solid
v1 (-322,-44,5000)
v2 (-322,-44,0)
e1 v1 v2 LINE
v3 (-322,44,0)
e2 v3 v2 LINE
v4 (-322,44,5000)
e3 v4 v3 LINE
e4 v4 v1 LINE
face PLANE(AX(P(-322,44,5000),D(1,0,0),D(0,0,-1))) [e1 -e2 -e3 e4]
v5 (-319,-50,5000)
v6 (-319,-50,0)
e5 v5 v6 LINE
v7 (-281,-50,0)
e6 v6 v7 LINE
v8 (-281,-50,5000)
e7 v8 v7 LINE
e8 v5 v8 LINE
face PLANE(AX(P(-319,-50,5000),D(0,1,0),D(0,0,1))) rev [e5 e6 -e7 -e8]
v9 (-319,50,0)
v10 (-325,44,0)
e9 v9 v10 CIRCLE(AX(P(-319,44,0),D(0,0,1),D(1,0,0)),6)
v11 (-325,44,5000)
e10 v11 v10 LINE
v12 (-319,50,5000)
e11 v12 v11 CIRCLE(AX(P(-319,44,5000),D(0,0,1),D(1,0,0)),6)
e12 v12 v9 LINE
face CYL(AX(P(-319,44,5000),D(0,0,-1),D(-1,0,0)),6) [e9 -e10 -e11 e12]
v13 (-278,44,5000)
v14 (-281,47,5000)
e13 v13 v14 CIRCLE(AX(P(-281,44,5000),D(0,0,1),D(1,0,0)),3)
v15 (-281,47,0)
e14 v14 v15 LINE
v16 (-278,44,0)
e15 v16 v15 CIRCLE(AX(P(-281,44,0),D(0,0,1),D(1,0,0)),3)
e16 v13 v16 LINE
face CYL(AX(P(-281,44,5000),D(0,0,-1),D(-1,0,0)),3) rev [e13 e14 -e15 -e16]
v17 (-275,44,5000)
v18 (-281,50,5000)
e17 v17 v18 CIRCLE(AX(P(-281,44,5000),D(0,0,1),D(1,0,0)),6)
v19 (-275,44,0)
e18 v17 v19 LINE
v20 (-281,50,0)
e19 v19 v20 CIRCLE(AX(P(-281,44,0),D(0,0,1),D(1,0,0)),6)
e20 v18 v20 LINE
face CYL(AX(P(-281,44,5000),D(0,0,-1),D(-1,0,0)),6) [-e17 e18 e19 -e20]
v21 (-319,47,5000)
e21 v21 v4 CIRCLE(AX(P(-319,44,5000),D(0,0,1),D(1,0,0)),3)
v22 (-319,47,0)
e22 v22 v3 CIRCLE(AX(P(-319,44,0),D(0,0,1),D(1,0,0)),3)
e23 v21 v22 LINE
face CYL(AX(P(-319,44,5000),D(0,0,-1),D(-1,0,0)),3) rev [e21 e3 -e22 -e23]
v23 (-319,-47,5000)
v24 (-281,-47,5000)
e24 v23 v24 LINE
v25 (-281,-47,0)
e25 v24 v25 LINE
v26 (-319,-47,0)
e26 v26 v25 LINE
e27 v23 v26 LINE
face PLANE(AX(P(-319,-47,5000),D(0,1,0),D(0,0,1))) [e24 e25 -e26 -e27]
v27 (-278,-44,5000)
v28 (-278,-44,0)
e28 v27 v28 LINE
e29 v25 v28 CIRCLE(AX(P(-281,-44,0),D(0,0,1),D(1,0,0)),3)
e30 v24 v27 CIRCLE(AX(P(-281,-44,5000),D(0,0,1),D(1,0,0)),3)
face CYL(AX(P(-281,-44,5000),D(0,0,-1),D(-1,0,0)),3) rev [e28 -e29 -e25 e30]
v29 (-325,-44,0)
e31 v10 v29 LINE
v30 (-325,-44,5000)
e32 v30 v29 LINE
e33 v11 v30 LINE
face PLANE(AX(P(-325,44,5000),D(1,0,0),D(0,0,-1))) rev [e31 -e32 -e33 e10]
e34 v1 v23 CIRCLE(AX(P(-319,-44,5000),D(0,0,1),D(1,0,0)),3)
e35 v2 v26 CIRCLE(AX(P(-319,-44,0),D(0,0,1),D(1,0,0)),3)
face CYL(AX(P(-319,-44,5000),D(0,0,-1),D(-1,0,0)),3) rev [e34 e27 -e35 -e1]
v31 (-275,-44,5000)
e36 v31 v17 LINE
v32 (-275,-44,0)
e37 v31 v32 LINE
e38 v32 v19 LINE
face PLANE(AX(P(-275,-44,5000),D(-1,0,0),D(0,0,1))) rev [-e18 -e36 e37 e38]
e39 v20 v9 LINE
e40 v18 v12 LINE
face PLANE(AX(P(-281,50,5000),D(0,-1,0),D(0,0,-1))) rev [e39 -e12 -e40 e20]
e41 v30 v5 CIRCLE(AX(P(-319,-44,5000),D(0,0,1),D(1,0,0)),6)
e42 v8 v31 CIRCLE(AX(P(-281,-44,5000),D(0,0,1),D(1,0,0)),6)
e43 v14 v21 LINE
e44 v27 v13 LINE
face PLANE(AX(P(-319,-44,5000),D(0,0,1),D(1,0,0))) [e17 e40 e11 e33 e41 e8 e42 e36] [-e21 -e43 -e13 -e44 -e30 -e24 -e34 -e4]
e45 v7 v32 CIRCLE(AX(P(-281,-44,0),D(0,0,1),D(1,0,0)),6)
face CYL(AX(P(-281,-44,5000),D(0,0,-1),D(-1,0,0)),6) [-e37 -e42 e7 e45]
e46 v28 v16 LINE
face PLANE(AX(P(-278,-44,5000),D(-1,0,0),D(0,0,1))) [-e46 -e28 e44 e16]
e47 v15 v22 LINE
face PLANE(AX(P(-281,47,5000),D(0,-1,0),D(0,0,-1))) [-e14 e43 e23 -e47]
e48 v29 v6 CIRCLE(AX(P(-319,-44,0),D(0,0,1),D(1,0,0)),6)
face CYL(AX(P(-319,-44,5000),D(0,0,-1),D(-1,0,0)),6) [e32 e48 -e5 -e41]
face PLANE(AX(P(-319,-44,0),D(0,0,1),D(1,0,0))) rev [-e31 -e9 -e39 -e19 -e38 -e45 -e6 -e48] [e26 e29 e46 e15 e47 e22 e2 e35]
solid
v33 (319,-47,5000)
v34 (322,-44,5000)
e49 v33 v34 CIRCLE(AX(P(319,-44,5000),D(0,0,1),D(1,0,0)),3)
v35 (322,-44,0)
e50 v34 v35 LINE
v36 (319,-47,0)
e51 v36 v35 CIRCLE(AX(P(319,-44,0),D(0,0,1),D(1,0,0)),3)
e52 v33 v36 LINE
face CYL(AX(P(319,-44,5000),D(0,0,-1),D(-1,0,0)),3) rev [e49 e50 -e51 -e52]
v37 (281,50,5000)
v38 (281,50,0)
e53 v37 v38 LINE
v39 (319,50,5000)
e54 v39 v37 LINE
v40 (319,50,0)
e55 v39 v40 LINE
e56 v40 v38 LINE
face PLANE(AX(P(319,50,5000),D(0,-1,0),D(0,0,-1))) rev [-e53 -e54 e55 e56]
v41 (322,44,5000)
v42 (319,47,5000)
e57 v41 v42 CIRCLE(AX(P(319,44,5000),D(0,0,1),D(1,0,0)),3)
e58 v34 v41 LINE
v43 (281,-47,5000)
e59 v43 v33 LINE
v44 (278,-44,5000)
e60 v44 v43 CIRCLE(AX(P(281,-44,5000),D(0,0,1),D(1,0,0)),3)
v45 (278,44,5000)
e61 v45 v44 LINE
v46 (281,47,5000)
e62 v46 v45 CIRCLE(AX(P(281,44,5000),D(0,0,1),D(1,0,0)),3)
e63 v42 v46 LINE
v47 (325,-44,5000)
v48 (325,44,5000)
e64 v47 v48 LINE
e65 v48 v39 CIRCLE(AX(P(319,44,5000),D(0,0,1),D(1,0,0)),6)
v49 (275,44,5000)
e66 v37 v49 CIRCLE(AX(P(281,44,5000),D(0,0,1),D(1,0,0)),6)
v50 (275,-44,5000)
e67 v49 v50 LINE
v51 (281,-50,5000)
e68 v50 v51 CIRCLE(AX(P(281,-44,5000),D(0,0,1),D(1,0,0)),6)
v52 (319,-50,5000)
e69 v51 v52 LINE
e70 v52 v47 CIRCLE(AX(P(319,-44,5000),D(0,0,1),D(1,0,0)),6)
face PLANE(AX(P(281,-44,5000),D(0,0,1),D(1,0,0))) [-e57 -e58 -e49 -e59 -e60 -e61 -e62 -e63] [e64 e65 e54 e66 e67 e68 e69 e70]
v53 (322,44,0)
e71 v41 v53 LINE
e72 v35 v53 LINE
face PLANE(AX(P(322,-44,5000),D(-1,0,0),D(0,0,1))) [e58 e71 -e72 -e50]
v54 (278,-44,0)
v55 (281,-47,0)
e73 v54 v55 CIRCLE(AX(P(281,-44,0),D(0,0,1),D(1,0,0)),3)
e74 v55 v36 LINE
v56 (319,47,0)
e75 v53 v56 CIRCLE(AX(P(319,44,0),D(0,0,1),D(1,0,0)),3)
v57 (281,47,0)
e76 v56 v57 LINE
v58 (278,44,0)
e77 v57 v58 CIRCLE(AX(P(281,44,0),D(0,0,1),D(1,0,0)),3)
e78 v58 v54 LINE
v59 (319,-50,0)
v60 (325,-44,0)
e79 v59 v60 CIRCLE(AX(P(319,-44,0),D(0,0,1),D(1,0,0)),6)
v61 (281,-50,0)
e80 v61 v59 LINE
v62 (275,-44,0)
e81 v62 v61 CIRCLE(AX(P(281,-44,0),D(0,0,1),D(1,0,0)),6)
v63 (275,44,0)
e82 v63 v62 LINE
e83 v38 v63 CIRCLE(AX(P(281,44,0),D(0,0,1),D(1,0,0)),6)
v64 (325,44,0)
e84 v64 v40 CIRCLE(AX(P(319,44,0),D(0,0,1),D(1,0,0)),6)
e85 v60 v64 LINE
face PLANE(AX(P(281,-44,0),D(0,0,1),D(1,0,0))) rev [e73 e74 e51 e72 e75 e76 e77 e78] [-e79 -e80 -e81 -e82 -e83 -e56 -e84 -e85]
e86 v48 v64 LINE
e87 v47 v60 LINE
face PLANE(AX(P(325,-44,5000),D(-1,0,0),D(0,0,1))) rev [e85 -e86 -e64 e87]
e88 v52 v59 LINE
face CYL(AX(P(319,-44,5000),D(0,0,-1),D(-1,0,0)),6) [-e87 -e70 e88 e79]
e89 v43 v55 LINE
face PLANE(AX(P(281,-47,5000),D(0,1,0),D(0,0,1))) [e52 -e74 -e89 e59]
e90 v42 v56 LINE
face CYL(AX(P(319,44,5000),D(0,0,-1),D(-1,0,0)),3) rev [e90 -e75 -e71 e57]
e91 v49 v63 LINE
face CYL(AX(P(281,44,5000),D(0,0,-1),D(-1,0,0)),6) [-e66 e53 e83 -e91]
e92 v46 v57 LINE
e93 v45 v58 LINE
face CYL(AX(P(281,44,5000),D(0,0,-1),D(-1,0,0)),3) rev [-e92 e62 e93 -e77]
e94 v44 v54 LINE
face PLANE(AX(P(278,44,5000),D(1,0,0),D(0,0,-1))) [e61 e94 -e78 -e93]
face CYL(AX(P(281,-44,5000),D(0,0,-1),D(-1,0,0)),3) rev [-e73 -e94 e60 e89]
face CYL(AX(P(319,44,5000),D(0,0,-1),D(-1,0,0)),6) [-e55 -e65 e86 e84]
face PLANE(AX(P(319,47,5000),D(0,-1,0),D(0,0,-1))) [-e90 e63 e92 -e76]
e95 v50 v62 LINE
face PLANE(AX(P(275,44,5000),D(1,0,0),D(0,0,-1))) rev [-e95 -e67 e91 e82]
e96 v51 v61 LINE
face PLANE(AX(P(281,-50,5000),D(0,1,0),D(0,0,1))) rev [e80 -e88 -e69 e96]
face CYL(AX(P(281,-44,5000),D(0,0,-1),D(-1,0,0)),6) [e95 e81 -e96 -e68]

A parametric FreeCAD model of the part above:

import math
import FreeCAD as App
import Part
import Sketcher
Q = App.Units.Quantity

doc = App.newDocument("Part")
body = doc.addObject("PartDesign::Body", "Body")

sketch1 = body.newObject("Sketcher::SketchObject", "Sketch")
sketch1.AttachmentSupport = (doc.getObject("XY_Plane"), [""])
sketch1.MapMode = "FlatFace"
sketch1.addGeometry([
    Part.LineSegment(App.Vector(-319, -50, 0), App.Vector(-281, -50, 0)),
    Part.ArcOfCircle(Part.Circle(App.Vector(-281, -44, 0), App.Vector(0, 0, 1), 6), math.radians(-90), math.radians(0)),
    Part.LineSegment(App.Vector(-275, -44, 0), App.Vector(-275, 44, 0)),
    Part.ArcOfCircle(Part.Circle(App.Vector(-281, 44, 0), App.Vector(0, 0, 1), 6), math.radians(0), math.radians(90)),
    Part.LineSegment(App.Vector(-281, 50, 0), App.Vector(-319, 50, 0)),
    Part.ArcOfCircle(Part.Circle(App.Vector(-319, 44, 0), App.Vector(0, 0, 1), 6), math.radians(90), math.radians(180)),
    Part.LineSegment(App.Vector(-325, 44, 0), App.Vector(-325, -44, 0)),
    Part.ArcOfCircle(Part.Circle(App.Vector(-319, -44, 0), App.Vector(0, 0, 1), 6), math.radians(180), math.radians(270)),
    Part.LineSegment(App.Vector(-281, -47, 0), App.Vector(-319, -47, 0)),
    Part.ArcOfCircle(Part.Circle(App.Vector(-319, -44, 0), App.Vector(0, 0, 1), 3), math.radians(180), math.radians(270)),
    Part.LineSegment(App.Vector(-322, -44, 0), App.Vector(-322, 44, 0)),
    Part.ArcOfCircle(Part.Circle(App.Vector(-319, 44, 0), App.Vector(0, 0, 1), 3), math.radians(90), math.radians(180)),
    Part.LineSegment(App.Vector(-319, 47, 0), App.Vector(-281, 47, 0)),
    Part.ArcOfCircle(Part.Circle(App.Vector(-281, 44, 0), App.Vector(0, 0, 1), 3), math.radians(0), math.radians(90)),
    Part.LineSegment(App.Vector(-278, 44, 0), App.Vector(-278, -44, 0)),
    Part.ArcOfCircle(Part.Circle(App.Vector(-281, -44, 0), App.Vector(0, 0, 1), 3), math.radians(-90), math.radians(0)),
], False)
sketch1.addConstraint([
    Sketcher.Constraint("Tangent", 0, 2, 1, 1),
    Sketcher.Constraint("Tangent", 1, 2, 2, 1),
    Sketcher.Constraint("Tangent", 2, 2, 3, 1),
    Sketcher.Constraint("Tangent", 3, 2, 4, 1),
    Sketcher.Constraint("Tangent", 4, 2, 5, 1),
    Sketcher.Constraint("Tangent", 5, 2, 6, 1),
    Sketcher.Constraint("Tangent", 6, 2, 7, 1),
    Sketcher.Constraint("Tangent", 7, 2, 0, 1),
    Sketcher.Constraint("Tangent", 8, 2, 9, 2),
    Sketcher.Constraint("Tangent", 9, 1, 10, 1),
    Sketcher.Constraint("Tangent", 10, 2, 11, 2),
    Sketcher.Constraint("Tangent", 11, 1, 12, 1),
    Sketcher.Constraint("Tangent", 12, 2, 13, 2),
    Sketcher.Constraint("Tangent", 13, 1, 14, 1),
    Sketcher.Constraint("Tangent", 14, 2, 15, 2),
    Sketcher.Constraint("Tangent", 15, 1, 8, 1),
    Sketcher.Constraint("Horizontal", 0),
    Sketcher.Constraint("Vertical", 2),
    Sketcher.Constraint("Horizontal", 4),
    Sketcher.Constraint("Vertical", 6),
    Sketcher.Constraint("Horizontal", 8),
    Sketcher.Constraint("Vertical", 10),
    Sketcher.Constraint("Horizontal", 12),
    Sketcher.Constraint("Vertical", 14),
    Sketcher.Constraint("Coincident", 9, 3, 7, 3),
    Sketcher.Constraint("Coincident", 11, 3, 5, 3),
    Sketcher.Constraint("Coincident", 13, 3, 3, 3),
    Sketcher.Constraint("Equal", 1, 3),
    Sketcher.Constraint("Equal", 3, 5),
    Sketcher.Constraint("Equal", 5, 7),
    Sketcher.Constraint("Equal", 13, 15),
    Sketcher.Constraint("Radius", 1, Q("6 mm")),
    Sketcher.Constraint("Radius", 9, Q("3 mm")),
    Sketcher.Constraint("DistanceX", 0, 1, 0, 2, Q("38 mm")),
    Sketcher.Constraint("DistanceY", 2, 1, 2, 2, Q("88 mm")),
    Sketcher.Constraint("DistanceX", 1, 3, -1, 1, Q("281 mm")),
    Sketcher.Constraint("DistanceY", 1, 3, -1, 1, Q("44 mm")),
])
pad1 = body.newObject("PartDesign::Pad", "Pad")
pad1.Profile = sketch1
pad1.Length = 5000
body2 = doc.addObject("PartDesign::Body", "Body001")

sketch2 = body2.newObject("Sketcher::SketchObject", "Sketch001")
sketch2.AttachmentSupport = (doc.getObject("XY_Plane001"), [""])
sketch2.MapMode = "FlatFace"
sketch2.addGeometry([
    Part.LineSegment(App.Vector(281, -50, 0), App.Vector(319, -50, 0)),
    Part.ArcOfCircle(Part.Circle(App.Vector(319, -44, 0), App.Vector(0, 0, 1), 6), math.radians(-90), math.radians(0)),
    Part.LineSegment(App.Vector(325, -44, 0), App.Vector(325, 44, 0)),
    Part.ArcOfCircle(Part.Circle(App.Vector(319, 44, 0), App.Vector(0, 0, 1), 6), math.radians(0), math.radians(90)),
    Part.LineSegment(App.Vector(319, 50, 0), App.Vector(281, 50, 0)),
    Part.ArcOfCircle(Part.Circle(App.Vector(281, 44, 0), App.Vector(0, 0, 1), 6), math.radians(90), math.radians(180)),
    Part.LineSegment(App.Vector(275, 44, 0), App.Vector(275, -44, 0)),
    Part.ArcOfCircle(Part.Circle(App.Vector(281, -44, 0), App.Vector(0, 0, 1), 6), math.radians(180), math.radians(270)),
    Part.LineSegment(App.Vector(319, -47, 0), App.Vector(281, -47, 0)),
    Part.ArcOfCircle(Part.Circle(App.Vector(281, -44, 0), App.Vector(0, 0, 1), 3), math.radians(180), math.radians(270)),
    Part.LineSegment(App.Vector(278, -44, 0), App.Vector(278, 44, 0)),
    Part.ArcOfCircle(Part.Circle(App.Vector(281, 44, 0), App.Vector(0, 0, 1), 3), math.radians(90), math.radians(180)),
    Part.LineSegment(App.Vector(281, 47, 0), App.Vector(319, 47, 0)),
    Part.ArcOfCircle(Part.Circle(App.Vector(319, 44, 0), App.Vector(0, 0, 1), 3), math.radians(0), math.radians(90)),
    Part.LineSegment(App.Vector(322, 44, 0), App.Vector(322, -44, 0)),
    Part.ArcOfCircle(Part.Circle(App.Vector(319, -44, 0), App.Vector(0, 0, 1), 3), math.radians(-90), math.radians(0)),
], False)
sketch2.addConstraint([
    Sketcher.Constraint("Tangent", 0, 2, 1, 1),
    Sketcher.Constraint("Tangent", 1, 2, 2, 1),
    Sketcher.Constraint("Tangent", 2, 2, 3, 1),
    Sketcher.Constraint("Tangent", 3, 2, 4, 1),
    Sketcher.Constraint("Tangent", 4, 2, 5, 1),
    Sketcher.Constraint("Tangent", 5, 2, 6, 1),
    Sketcher.Constraint("Tangent", 6, 2, 7, 1),
    Sketcher.Constraint("Tangent", 7, 2, 0, 1),
    Sketcher.Constraint("Tangent", 8, 2, 9, 2),
    Sketcher.Constraint("Tangent", 9, 1, 10, 1),
    Sketcher.Constraint("Tangent", 10, 2, 11, 2),
    Sketcher.Constraint("Tangent", 11, 1, 12, 1),
    Sketcher.Constraint("Tangent", 12, 2, 13, 2),
    Sketcher.Constraint("Tangent", 13, 1, 14, 1),
    Sketcher.Constraint("Tangent", 14, 2, 15, 2),
    Sketcher.Constraint("Tangent", 15, 1, 8, 1),
    Sketcher.Constraint("Horizontal", 0),
    Sketcher.Constraint("Vertical", 2),
    Sketcher.Constraint("Horizontal", 4),
    Sketcher.Constraint("Vertical", 6),
    Sketcher.Constraint("Horizontal", 8),
    Sketcher.Constraint("Vertical", 10),
    Sketcher.Constraint("Horizontal", 12),
    Sketcher.Constraint("Vertical", 14),
    Sketcher.Constraint("Coincident", 9, 3, 7, 3),
    Sketcher.Constraint("Coincident", 11, 3, 5, 3),
    Sketcher.Constraint("Coincident", 13, 3, 3, 3),
    Sketcher.Constraint("Equal", 1, 3),
    Sketcher.Constraint("Equal", 3, 5),
    Sketcher.Constraint("Equal", 5, 7),
    Sketcher.Constraint("Equal", 13, 15),
    Sketcher.Constraint("Radius", 1, Q("6 mm")),
    Sketcher.Constraint("Radius", 9, Q("3 mm")),
    Sketcher.Constraint("DistanceX", 0, 1, 0, 2, Q("38 mm")),
    Sketcher.Constraint("DistanceY", 2, 1, 2, 2, Q("88 mm")),
    Sketcher.Constraint("DistanceX", -1, 1, 1, 3, Q("319 mm")),
    Sketcher.Constraint("DistanceY", 1, 3, -1, 1, Q("44 mm")),
])
pad2 = body2.newObject("PartDesign::Pad", "Pad001")
pad2.Profile = sketch2
pad2.Length = 5000

doc.recompute()
